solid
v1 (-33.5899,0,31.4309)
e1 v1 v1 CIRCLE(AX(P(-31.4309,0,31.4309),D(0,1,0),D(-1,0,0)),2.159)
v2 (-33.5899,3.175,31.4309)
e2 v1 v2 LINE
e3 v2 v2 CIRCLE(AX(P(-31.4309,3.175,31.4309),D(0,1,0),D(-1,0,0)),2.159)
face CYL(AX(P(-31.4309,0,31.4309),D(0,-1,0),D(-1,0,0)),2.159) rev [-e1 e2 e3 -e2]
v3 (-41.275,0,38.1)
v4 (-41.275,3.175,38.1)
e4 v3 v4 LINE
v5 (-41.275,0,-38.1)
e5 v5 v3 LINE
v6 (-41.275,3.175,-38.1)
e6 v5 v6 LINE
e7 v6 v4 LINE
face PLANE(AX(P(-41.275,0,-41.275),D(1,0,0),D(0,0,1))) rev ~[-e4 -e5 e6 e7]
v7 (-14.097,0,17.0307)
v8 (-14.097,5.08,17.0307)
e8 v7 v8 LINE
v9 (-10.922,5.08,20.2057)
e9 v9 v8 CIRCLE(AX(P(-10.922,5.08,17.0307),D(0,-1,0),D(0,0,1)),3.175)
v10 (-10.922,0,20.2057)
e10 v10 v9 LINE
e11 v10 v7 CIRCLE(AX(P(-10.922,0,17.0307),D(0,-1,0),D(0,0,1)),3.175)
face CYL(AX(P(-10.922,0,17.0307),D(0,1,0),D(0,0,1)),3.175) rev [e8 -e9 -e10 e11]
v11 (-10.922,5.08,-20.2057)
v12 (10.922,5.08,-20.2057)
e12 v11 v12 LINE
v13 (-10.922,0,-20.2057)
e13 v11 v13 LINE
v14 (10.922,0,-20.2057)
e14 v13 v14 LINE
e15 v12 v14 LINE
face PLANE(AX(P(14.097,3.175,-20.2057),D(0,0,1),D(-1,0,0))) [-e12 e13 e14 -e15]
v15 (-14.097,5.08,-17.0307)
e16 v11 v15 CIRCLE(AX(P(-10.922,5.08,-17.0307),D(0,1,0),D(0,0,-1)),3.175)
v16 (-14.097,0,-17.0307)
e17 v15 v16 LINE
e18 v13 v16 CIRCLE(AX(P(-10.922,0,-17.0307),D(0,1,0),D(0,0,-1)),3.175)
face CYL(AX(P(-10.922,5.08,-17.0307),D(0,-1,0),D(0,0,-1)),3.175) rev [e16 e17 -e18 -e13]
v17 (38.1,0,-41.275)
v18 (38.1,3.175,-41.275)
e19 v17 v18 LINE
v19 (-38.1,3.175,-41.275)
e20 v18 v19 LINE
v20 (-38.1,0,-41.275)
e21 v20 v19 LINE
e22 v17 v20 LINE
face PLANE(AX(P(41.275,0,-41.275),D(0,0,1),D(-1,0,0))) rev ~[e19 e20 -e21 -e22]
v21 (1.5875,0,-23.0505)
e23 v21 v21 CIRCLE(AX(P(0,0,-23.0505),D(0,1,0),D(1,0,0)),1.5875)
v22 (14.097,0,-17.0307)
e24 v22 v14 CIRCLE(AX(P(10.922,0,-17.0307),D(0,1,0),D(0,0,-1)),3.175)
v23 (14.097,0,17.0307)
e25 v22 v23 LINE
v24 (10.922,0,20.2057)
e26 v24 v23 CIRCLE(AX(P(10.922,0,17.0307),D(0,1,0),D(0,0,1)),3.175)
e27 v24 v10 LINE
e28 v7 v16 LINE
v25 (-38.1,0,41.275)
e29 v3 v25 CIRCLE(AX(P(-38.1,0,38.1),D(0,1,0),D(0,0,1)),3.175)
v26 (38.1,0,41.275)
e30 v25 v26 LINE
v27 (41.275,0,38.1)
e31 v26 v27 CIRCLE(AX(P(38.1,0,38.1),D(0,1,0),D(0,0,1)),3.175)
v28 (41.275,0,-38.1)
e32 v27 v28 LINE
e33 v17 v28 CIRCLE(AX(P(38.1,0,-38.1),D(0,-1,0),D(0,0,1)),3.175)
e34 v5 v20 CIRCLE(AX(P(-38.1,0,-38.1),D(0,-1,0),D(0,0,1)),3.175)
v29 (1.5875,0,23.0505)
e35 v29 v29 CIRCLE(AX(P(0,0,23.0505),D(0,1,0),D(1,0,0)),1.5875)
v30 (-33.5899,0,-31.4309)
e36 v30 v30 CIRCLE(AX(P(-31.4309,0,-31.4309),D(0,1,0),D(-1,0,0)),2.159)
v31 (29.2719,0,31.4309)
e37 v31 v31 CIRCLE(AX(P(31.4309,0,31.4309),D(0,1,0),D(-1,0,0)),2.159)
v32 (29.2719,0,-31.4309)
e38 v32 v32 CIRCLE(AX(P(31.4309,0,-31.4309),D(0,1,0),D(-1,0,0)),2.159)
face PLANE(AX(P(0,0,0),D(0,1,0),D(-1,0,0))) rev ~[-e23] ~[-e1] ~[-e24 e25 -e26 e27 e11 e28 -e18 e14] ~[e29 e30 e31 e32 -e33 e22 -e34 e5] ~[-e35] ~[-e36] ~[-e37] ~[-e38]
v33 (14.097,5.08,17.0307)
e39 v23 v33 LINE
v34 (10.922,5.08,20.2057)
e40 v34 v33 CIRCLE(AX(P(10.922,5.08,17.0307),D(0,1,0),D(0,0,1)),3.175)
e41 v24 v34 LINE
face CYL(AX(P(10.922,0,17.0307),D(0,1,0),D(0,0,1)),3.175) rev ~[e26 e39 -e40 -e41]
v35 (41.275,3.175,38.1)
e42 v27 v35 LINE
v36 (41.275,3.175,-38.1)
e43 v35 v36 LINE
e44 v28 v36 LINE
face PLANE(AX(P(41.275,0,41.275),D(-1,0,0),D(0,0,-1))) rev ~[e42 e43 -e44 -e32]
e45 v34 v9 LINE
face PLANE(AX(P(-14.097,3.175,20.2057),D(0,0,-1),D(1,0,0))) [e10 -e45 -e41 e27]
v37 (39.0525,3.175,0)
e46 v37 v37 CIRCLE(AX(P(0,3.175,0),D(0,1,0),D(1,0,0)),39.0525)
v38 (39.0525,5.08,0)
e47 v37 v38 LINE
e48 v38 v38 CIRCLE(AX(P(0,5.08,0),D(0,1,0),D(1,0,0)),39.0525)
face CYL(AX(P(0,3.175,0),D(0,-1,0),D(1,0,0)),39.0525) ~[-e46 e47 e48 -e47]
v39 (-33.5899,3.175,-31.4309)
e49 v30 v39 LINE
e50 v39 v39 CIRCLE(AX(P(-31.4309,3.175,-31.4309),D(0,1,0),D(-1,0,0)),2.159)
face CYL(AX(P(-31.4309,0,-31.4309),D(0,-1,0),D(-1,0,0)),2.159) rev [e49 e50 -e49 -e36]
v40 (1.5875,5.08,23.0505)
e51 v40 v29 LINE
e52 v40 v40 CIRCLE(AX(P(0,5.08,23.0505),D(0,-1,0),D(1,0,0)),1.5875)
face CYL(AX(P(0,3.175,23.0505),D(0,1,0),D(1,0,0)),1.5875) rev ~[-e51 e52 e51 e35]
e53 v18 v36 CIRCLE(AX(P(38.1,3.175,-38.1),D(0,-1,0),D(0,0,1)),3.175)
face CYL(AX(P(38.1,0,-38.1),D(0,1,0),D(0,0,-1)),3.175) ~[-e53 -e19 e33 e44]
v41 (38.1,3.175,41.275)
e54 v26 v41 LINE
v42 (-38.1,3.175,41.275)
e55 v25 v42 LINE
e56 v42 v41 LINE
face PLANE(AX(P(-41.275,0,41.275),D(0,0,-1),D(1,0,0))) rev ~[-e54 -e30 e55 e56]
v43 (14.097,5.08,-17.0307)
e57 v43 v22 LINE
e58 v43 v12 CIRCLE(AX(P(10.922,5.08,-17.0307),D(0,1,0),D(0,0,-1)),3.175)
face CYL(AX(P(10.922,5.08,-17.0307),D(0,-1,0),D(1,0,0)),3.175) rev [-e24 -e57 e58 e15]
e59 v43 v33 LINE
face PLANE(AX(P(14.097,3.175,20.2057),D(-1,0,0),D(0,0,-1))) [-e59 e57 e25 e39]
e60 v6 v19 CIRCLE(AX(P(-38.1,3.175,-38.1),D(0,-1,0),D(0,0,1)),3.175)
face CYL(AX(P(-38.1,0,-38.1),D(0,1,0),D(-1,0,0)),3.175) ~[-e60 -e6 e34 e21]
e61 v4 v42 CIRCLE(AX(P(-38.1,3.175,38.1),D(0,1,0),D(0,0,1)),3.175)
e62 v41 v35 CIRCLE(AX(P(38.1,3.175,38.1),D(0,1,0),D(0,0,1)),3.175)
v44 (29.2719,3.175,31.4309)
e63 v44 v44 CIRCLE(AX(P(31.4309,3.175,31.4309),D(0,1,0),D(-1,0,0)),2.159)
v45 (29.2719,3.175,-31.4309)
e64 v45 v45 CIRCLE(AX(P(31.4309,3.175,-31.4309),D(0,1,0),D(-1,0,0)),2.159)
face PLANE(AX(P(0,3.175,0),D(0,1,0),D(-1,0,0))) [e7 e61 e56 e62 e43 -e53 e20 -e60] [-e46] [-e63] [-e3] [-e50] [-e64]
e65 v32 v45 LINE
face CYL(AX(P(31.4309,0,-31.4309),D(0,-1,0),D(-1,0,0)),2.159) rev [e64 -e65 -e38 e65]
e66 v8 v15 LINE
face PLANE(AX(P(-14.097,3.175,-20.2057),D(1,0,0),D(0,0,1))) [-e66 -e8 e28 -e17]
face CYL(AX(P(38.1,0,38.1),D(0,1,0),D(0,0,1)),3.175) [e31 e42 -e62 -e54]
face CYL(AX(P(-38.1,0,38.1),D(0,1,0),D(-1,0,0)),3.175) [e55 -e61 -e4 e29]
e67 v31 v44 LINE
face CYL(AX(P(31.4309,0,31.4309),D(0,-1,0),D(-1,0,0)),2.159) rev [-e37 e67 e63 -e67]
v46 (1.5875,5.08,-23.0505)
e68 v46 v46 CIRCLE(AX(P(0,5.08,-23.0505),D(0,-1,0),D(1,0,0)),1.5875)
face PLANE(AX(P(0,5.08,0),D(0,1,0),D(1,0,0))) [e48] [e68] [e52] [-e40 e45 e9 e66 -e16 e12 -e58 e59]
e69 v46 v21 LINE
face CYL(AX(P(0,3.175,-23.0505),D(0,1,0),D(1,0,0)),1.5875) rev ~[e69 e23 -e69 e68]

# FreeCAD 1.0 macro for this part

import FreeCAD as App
import Part
import Sketcher
from FreeCAD import Vector
Q = App.Units.Quantity


def edges_at(feature, points):
    """Names of the edges that pass closest to the given points."""
    edges = feature.Shape.Edges
    near = lambda p: min(range(len(edges)), key=lambda i: edges[i].distToShape(Part.Vertex(*p))[0])
    return sorted({f"Edge{near(p) + 1}" for p in points})


def add_polygon(sketch, points):
    """Adds a closed chain of lines whose ends are joined by coincident constraints."""
    first, n = sketch.GeometryCount, len(points)
    for a, b in zip(points, points[1:] + points[:1]):
        sketch.addGeometry(Part.LineSegment(App.Vector(*a, 0), App.Vector(*b, 0)), False)
    for i in range(n):
        sketch.addConstraint(Sketcher.Constraint("Coincident", first + i, 2, first + (i + 1) % n, 1))

doc = App.newDocument("Part")
body = doc.addObject("PartDesign::Body", "Body")

sketch1 = body.newObject("Sketcher::SketchObject", "Sketch")
sketch1.AttachmentSupport = (doc.getObject("XZ_Plane"), [""])
sketch1.MapMode = "FlatFace"
add_polygon(sketch1, [(-41.275, -41.275), (-41.275, 41.275), (41.275, 41.275), (41.275, -41.275)])
sketch1.addGeometry(Part.Circle(Vector(31.4309, -31.4309, 0), Vector(0, 0, 1), 2.159), False)
sketch1.addGeometry(Part.Circle(Vector(-31.4309, -31.4309, 0), Vector(0, 0, 1), 2.159), False)
sketch1.addGeometry(Part.Circle(Vector(31.4309, 31.4309, 0), Vector(0, 0, 1), 2.159), False)
sketch1.addGeometry(Part.Circle(Vector(-31.4309, 31.4309, 0), Vector(0, 0, 1), 2.159), False)
sketch1.addConstraint(Sketcher.Constraint("Vertical", 0))
sketch1.addConstraint(Sketcher.Constraint("Horizontal", 1))
sketch1.addConstraint(Sketcher.Constraint("Vertical", 2))
sketch1.addConstraint(Sketcher.Constraint("Horizontal", 3))
sketch1.addConstraint(Sketcher.Constraint("Equal", 4, 5))
sketch1.addConstraint(Sketcher.Constraint("Equal", 5, 6))
sketch1.addConstraint(Sketcher.Constraint("Equal", 6, 7))
sketch1.addConstraint(Sketcher.Constraint("Symmetric", 5, 3, 6, 3, -1, 1))
sketch1.addConstraint(Sketcher.Constraint("Symmetric", 4, 3, 7, 3, -1, 1))
sketch1.addConstraint(Sketcher.Constraint("Symmetric", 0, 2, 2, 2, -1, 1))
sketch1.addConstraint(Sketcher.Constraint("Symmetric", 4, 3, 5, 3, -2))
sketch1.addConstraint(Sketcher.Constraint("Equal", 3, 0))
sketch1.addConstraint(Sketcher.Constraint("Diameter", 4, Q("0.17 in")))
sketch1.addConstraint(Sketcher.Constraint("DistanceX", 1, 1, 1, 2, Q("3.25 in")))
sketch1.addConstraint(Sketcher.Constraint("DistanceX", -1, 1, 4, 3, Q("31.431 mm")))
sketch1.addConstraint(Sketcher.Constraint("DistanceY", 4, 3, -1, 1, Q("31.431 mm")))
pad1 = body.newObject("PartDesign::Pad", "Pad")
pad1.Profile = sketch1
pad1.Length = Q("0.125 in")
pad1.Reversed = True

sketch2 = body.newObject("Sketcher::SketchObject", "Sketch001")
sketch2.AttachmentSupport = (doc.getObject("XZ_Plane"), [""])
sketch2.MapMode = "FlatFace"
sketch2.AttachmentOffset = App.Placement(Vector(0, 0, -0.125 * 25.4), App.Rotation())
sketch2.addGeometry(Part.Circle(Vector(0, 0, 0), Vector(0, 0, 1), 39.0525), False)
sketch2.addConstraint(Sketcher.Constraint("Coincident", 0, 3, -1, 1))
sketch2.addConstraint(Sketcher.Constraint("Diameter", 0, Q("3.075 in")))
pad2 = body.newObject("PartDesign::Pad", "Pad001")
pad2.Profile = sketch2
pad2.Length = Q("0.075 in")
pad2.Reversed = True
doc.recompute()

fillet = body.newObject("PartDesign::Fillet", "Fillet")
fillet.Base = (pad2, edges_at(pad2, [
    (41.275, 1.587, 41.275),
    (-41.275, 1.587, 41.275),
    (-41.275, 1.587, -41.275),
    (41.275, 1.587, -41.275),
]))
fillet.Radius = Q("0.125 in")

sketch3 = body.newObject("Sketcher::SketchObject", "Sketch002")
sketch3.AttachmentSupport = (doc.getObject("XZ_Plane"), [""])
sketch3.MapMode = "FlatFace"
sketch3.AttachmentOffset = App.Placement(Vector(0, 0, -0.125 * 25.4), App.Rotation())
add_polygon(sketch3, [(-14.097, -20.2057), (-14.097, 20.2057), (14.097, 20.2057), (14.097, -20.2057)])
sketch3.addGeometry(Part.Circle(Vector(0, 23.0505, 0), Vector(0, 0, 1), 1.5875), False)
sketch3.addGeometry(Part.Circle(Vector(0, -23.0505, 0), Vector(0, 0, 1), 1.5875), False)
sketch3.addConstraint(Sketcher.Constraint("Vertical", 0))
sketch3.addConstraint(Sketcher.Constraint("Horizontal", 1))
sketch3.addConstraint(Sketcher.Constraint("Vertical", 2))
sketch3.addConstraint(Sketcher.Constraint("Horizontal", 3))
sketch3.addConstraint(Sketcher.Constraint("Equal", 4, 5))
sketch3.addConstraint(Sketcher.Constraint("Symmetric", 4, 3, 5, 3, -1, 1))
sketch3.addConstraint(Sketcher.Constraint("Symmetric", 0, 2, 2, 2, -1, 1))
sketch3.addConstraint(Sketcher.Constraint("PointOnObject", 4, 3, -2))
sketch3.addConstraint(Sketcher.Constraint("Diameter", 4, Q("0.125 in")))
sketch3.addConstraint(Sketcher.Constraint("DistanceX", 1, 1, 1, 2, Q("1.11 in")))
sketch3.addConstraint(Sketcher.Constraint("DistanceY", 0, 1, 0, 2, Q("1.591 in")))
sketch3.addConstraint(Sketcher.Constraint("DistanceY", 5, 3, 4, 3, Q("1.815 in")))
pocket1 = body.newObject("PartDesign::Pocket", "Pocket")
pocket1.Profile = sketch3
pocket1.Type = "ThroughAll"
pocket1.Midplane = True
doc.recompute()

fillet2 = body.newObject("PartDesign::Fillet", "Fillet001")
fillet2.Base = (pocket1, edges_at(pocket1, [
    (14.097, 2.54, 20.206),
    (-14.097, 2.54, 20.206),
    (-14.097, 2.54, -20.206),
    (14.097, 2.54, -20.206),
]))
fillet2.Radius = Q("0.125 in")

doc.recompute()
